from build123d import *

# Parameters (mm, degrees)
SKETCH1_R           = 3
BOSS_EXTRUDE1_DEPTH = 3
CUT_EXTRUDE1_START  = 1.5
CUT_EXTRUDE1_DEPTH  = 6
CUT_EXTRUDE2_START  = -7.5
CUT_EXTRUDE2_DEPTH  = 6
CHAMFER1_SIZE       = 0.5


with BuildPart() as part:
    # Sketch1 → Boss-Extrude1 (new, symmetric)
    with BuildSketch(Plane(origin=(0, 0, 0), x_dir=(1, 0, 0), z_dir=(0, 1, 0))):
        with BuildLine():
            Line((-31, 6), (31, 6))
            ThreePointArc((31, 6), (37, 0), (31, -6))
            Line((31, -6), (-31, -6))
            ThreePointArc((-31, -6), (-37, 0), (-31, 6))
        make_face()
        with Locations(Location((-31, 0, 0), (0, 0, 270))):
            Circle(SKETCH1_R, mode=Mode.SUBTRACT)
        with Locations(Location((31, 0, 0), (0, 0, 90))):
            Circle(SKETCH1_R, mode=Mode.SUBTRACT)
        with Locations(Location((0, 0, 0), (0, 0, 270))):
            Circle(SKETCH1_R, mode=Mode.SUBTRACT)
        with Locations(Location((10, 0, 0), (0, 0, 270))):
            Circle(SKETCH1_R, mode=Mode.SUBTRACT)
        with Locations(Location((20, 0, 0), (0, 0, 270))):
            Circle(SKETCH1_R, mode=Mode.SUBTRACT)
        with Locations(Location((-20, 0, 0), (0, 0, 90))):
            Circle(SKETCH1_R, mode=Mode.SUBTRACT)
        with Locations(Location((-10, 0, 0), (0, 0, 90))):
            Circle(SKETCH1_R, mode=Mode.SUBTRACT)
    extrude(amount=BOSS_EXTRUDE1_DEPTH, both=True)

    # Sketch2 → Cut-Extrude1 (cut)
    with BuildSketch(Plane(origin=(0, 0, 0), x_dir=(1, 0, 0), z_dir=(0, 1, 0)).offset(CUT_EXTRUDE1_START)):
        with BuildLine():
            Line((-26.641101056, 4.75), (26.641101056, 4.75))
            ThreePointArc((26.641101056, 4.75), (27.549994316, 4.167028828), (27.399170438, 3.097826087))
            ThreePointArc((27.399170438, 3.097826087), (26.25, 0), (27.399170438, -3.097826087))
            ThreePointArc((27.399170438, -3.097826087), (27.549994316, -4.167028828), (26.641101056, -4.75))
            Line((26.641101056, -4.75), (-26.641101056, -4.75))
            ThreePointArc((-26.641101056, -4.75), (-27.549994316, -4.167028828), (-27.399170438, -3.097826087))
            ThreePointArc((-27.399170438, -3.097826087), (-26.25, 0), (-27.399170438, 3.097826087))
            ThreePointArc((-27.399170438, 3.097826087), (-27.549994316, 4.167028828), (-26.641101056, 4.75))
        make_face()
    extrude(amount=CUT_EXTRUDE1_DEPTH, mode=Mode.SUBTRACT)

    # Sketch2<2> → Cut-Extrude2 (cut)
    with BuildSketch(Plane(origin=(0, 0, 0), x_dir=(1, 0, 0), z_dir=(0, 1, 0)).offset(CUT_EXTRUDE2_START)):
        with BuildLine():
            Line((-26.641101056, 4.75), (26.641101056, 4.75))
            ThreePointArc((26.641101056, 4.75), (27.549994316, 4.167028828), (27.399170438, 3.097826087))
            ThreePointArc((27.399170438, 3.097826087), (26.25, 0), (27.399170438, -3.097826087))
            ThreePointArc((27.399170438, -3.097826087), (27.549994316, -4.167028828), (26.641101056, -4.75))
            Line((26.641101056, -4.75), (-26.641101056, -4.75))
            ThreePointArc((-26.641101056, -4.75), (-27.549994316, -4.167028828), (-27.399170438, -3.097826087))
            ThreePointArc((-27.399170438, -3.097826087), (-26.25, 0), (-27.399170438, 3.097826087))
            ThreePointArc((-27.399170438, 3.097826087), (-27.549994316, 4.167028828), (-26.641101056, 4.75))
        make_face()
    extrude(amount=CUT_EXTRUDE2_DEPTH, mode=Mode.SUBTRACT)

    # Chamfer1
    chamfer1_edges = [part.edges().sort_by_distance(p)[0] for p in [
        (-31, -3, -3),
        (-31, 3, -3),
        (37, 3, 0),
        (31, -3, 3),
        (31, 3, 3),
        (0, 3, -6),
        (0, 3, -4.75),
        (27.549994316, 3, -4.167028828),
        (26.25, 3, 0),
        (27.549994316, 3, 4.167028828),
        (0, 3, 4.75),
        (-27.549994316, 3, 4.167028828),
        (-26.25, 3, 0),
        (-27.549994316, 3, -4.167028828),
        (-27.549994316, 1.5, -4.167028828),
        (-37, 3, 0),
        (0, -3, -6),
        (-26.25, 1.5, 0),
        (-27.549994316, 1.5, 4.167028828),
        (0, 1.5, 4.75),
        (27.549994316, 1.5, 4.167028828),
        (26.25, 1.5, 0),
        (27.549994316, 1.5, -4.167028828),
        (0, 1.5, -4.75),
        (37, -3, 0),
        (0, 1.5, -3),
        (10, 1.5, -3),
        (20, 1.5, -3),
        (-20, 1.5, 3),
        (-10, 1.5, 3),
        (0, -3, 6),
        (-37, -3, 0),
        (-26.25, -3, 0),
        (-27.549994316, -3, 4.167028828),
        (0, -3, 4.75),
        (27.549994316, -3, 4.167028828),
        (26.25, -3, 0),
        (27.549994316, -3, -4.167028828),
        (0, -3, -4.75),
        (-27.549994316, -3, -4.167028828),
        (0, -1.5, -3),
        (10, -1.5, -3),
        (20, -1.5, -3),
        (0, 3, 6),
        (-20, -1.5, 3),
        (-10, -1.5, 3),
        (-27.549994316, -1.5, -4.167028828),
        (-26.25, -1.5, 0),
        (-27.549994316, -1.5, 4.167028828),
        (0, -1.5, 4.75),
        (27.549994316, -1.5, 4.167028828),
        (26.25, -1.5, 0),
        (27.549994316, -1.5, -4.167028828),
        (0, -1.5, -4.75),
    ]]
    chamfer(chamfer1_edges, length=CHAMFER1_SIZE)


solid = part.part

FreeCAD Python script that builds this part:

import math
import FreeCAD as App
import Part
import Sketcher
Q = App.Units.Quantity


def edges_at(feature, points):
    """Names of the edges that pass closest to the given points."""
    edges = feature.Shape.Edges
    near = lambda p: min(range(len(edges)), key=lambda i: edges[i].distToShape(Part.Vertex(*p))[0])
    return sorted({f"Edge{near(p) + 1}" for p in points})

doc = App.newDocument("Part")
params = doc.addObject("Spreadsheet::Sheet", "Params")
for row, (alias, value) in enumerate([
    ("sketch1_diameter", "6 mm"),
    ("sketch1_radius", "6 mm"),
    ("sketch1_width", "62 mm"),
    ("pad1_length", "6 mm"),
    ("sketch2_radius", "1 mm"),
    ("sketch2_radius2", "4.75 mm"),
    ("pocket1_length", "6 mm"),
    ("sketch3_radius", "1 mm"),
    ("sketch3_radius2", "4.75 mm"),
    ("pocket2_length", "6 mm"),
    ("chamfer_size", "0.5 mm"),
], start=1):
    params.set(f"A{row}", alias)
    params.set(f"B{row}", "=" + value)
    params.setAlias(f"B{row}", alias)

body = doc.addObject("PartDesign::Body", "Body")

# Sketch on XZ plane
sketch1 = body.newObject("Sketcher::SketchObject", "Sketch")
sketch1.AttachmentSupport = (doc.getObject("XZ_Plane"), [""])
sketch1.MapMode = "FlatFace"
sketch1.addGeometry([
    Part.LineSegment(App.Vector(31, -6, 0), App.Vector(-31, -6, 0)),  # 0
    Part.ArcOfCircle(Part.Circle(App.Vector(-31, 0, 0), App.Vector(0, 0, 1), 6), math.radians(90), math.radians(270)),  # 1
    Part.LineSegment(App.Vector(-31, 6, 0), App.Vector(31, 6, 0)),  # 2
    Part.ArcOfCircle(Part.Circle(App.Vector(31, 0, 0), App.Vector(0, 0, 1), 6), math.radians(-90), math.radians(90)),  # 3
    Part.Circle(App.Vector(31, 0, 0), App.Vector(0, 0, 1), 3),  # 4
    Part.Circle(App.Vector(20, 0, 0), App.Vector(0, 0, 1), 3),  # 5
    Part.Circle(App.Vector(10, 0, 0), App.Vector(0, 0, 1), 3),  # 6
    Part.Circle(App.Vector(0, 0, 0), App.Vector(0, 0, 1), 3),  # 7
    Part.Circle(App.Vector(-10, 0, 0), App.Vector(0, 0, 1), 3),  # 8
    Part.Circle(App.Vector(-20, 0, 0), App.Vector(0, 0, 1), 3),  # 9
    Part.Circle(App.Vector(-31, 0, 0), App.Vector(0, 0, 1), 3),  # 10
], False)
sketch1.addConstraint([
    Sketcher.Constraint("Tangent", 0, 2, 1, 2),
    Sketcher.Constraint("Tangent", 1, 1, 2, 1),
    Sketcher.Constraint("Tangent", 2, 2, 3, 2),
    Sketcher.Constraint("Tangent", 3, 1, 0, 1),
    Sketcher.Constraint("Horizontal", 0),
    Sketcher.Constraint("Horizontal", 2),
    Sketcher.Constraint("Coincident", 7, 3, -1, 1),
    Sketcher.Constraint("Coincident", 4, 3, 3, 3),
    Sketcher.Constraint("Coincident", 10, 3, 1, 3),
    Sketcher.Constraint("Equal", 4, 5),
    Sketcher.Constraint("Equal", 5, 6),
    Sketcher.Constraint("Equal", 6, 7),
    Sketcher.Constraint("Equal", 7, 8),
    Sketcher.Constraint("Equal", 8, 9),
    Sketcher.Constraint("Equal", 9, 10),
    Sketcher.Constraint("Symmetric", 1, 3, 3, 3, -1, 1),
    Sketcher.Constraint("Symmetric", 6, 3, 8, 3, -1, 1),
    Sketcher.Constraint("Symmetric", 5, 3, 9, 3, -1, 1),
    Sketcher.Constraint("PointOnObject", 5, 3, -1),
    Sketcher.Constraint("PointOnObject", 6, 3, -1),
    Sketcher.Constraint("Diameter", 4, Q("6 mm")),
    Sketcher.Constraint("Radius", 1, Q("6 mm")),
    Sketcher.Constraint("DistanceX", 0, 2, 0, 1, Q("62 mm")),
    Sketcher.Constraint("DistanceX", -1, 1, 5, 3, Q("20 mm")),
    Sketcher.Constraint("DistanceX", -1, 1, 6, 3, Q("10 mm")),
])
sketch1.setExpression("Constraints[20]", "Params.sketch1_diameter")
sketch1.setExpression("Constraints[21]", "Params.sketch1_radius")
sketch1.setExpression("Constraints[22]", "Params.sketch1_width")
pad1 = body.newObject("PartDesign::Pad", "Pad")
pad1.Profile = sketch1
pad1.setExpression("Length", "Params.pad1_length")
pad1.Midplane = True

# Sketch on XZ plane
sketch2 = body.newObject("Sketcher::SketchObject", "Sketch001")
sketch2.AttachmentSupport = (doc.getObject("XZ_Plane"), [""])
sketch2.MapMode = "FlatFace"
sketch2.AttachmentOffset = App.Placement(App.Vector(0, 0, -1.5), App.Rotation())
sketch2.addGeometry([
    Part.LineSegment(App.Vector(26.6, -4.8, 0), App.Vector(-26.6, -4.8, 0)),  # 0
    Part.ArcOfCircle(Part.Circle(App.Vector(-26.6, -3.8, 0), App.Vector(0, 0, 1), 1), math.radians(139), math.radians(270)),  # 1
    Part.ArcOfCircle(Part.Circle(App.Vector(-31, 0, 0), App.Vector(0, 0, 1), 4.8), math.radians(-41), math.radians(41)),  # 2
    Part.ArcOfCircle(Part.Circle(App.Vector(-26.6, 3.8, 0), App.Vector(0, 0, 1), 1), math.radians(90), math.radians(221)),  # 3
    Part.LineSegment(App.Vector(-26.6, 4.8, 0), App.Vector(26.6, 4.8, 0)),  # 4
    Part.ArcOfCircle(Part.Circle(App.Vector(26.6, 3.8, 0), App.Vector(0, 0, 1), 1), math.radians(-41), math.radians(90)),  # 5
    Part.ArcOfCircle(Part.Circle(App.Vector(31, 0, 0), App.Vector(0, 0, 1), 4.8), math.radians(139), math.radians(221)),  # 6
    Part.ArcOfCircle(Part.Circle(App.Vector(26.6, -3.8, 0), App.Vector(0, 0, 1), 1), math.radians(-90), math.radians(41)),  # 7
], False)
sketch2.addConstraint([
    Sketcher.Constraint("Tangent", 0, 2, 1, 2),
    Sketcher.Constraint("Tangent", 1, 1, 2, 1),
    Sketcher.Constraint("Tangent", 2, 2, 3, 2),
    Sketcher.Constraint("Tangent", 3, 1, 4, 1),
    Sketcher.Constraint("Tangent", 4, 2, 5, 2),
    Sketcher.Constraint("Tangent", 5, 1, 6, 1),
    Sketcher.Constraint("Tangent", 6, 2, 7, 2),
    Sketcher.Constraint("Tangent", 7, 1, 0, 1),
    Sketcher.Constraint("Horizontal", 0),
    Sketcher.Constraint("Horizontal", 4),
    Sketcher.Constraint("Equal", 1, 3),
    Sketcher.Constraint("Equal", 3, 5),
    Sketcher.Constraint("Equal", 2, 6),
    Sketcher.Constraint("Equal", 5, 7),
    Sketcher.Constraint("Symmetric", 1, 3, 5, 3, -1, 1),
    Sketcher.Constraint("Symmetric", 2, 3, 6, 3, -2),
    Sketcher.Constraint("Radius", 1, Q("1 mm")),
    Sketcher.Constraint("Radius", 2, Q("4.75 mm")),
    Sketcher.Constraint("DistanceX", 2, 3, -1, 1, Q("31 mm")),
    Sketcher.Constraint("DistanceY", 1, 3, 3, 3, Q("7.5 mm")),
])
sketch2.setExpression("Constraints[16]", "Params.sketch2_radius")
sketch2.setExpression("Constraints[17]", "Params.sketch2_radius2")
pocket1 = body.newObject("PartDesign::Pocket", "Pocket")
pocket1.Profile = sketch2
pocket1.setExpression("Length", "Params.pocket1_length")

# Sketch on XZ plane
sketch3 = body.newObject("Sketcher::SketchObject", "Sketch002")
sketch3.AttachmentSupport = (doc.getObject("XZ_Plane"), [""])
sketch3.MapMode = "FlatFace"
sketch3.AttachmentOffset = App.Placement(App.Vector(0, 0, 7.5), App.Rotation())
sketch3.addGeometry([
    Part.LineSegment(App.Vector(26.6, -4.8, 0), App.Vector(-26.6, -4.8, 0)),  # 0
    Part.ArcOfCircle(Part.Circle(App.Vector(-26.6, -3.8, 0), App.Vector(0, 0, 1), 1), math.radians(139), math.radians(270)),  # 1
    Part.ArcOfCircle(Part.Circle(App.Vector(-31, 0, 0), App.Vector(0, 0, 1), 4.8), math.radians(-41), math.radians(41)),  # 2
    Part.ArcOfCircle(Part.Circle(App.Vector(-26.6, 3.8, 0), App.Vector(0, 0, 1), 1), math.radians(90), math.radians(221)),  # 3
    Part.LineSegment(App.Vector(-26.6, 4.8, 0), App.Vector(26.6, 4.8, 0)),  # 4
    Part.ArcOfCircle(Part.Circle(App.Vector(26.6, 3.8, 0), App.Vector(0, 0, 1), 1), math.radians(-41), math.radians(90)),  # 5
    Part.ArcOfCircle(Part.Circle(App.Vector(31, 0, 0), App.Vector(0, 0, 1), 4.8), math.radians(139), math.radians(221)),  # 6
    Part.ArcOfCircle(Part.Circle(App.Vector(26.6, -3.8, 0), App.Vector(0, 0, 1), 1), math.radians(-90), math.radians(41)),  # 7
], False)
sketch3.addConstraint([
    Sketcher.Constraint("Tangent", 0, 2, 1, 2),
    Sketcher.Constraint("Tangent", 1, 1, 2, 1),
    Sketcher.Constraint("Tangent", 2, 2, 3, 2),
    Sketcher.Constraint("Tangent", 3, 1, 4, 1),
    Sketcher.Constraint("Tangent", 4, 2, 5, 2),
    Sketcher.Constraint("Tangent", 5, 1, 6, 1),
    Sketcher.Constraint("Tangent", 6, 2, 7, 2),
    Sketcher.Constraint("Tangent", 7, 1, 0, 1),
    Sketcher.Constraint("Horizontal", 0),
    Sketcher.Constraint("Horizontal", 4),
    Sketcher.Constraint("Equal", 1, 3),
    Sketcher.Constraint("Equal", 3, 5),
    Sketcher.Constraint("Equal", 2, 6),
    Sketcher.Constraint("Equal", 5, 7),
    Sketcher.Constraint("Symmetric", 1, 3, 5, 3, -1, 1),
    Sketcher.Constraint("Symmetric", 2, 3, 6, 3, -2),
    Sketcher.Constraint("Radius", 1, Q("1 mm")),
    Sketcher.Constraint("Radius", 2, Q("4.75 mm")),
    Sketcher.Constraint("DistanceX", 2, 3, -1, 1, Q("31 mm")),
    Sketcher.Constraint("DistanceY", 1, 3, 3, 3, Q("7.5 mm")),
])
sketch3.setExpression("Constraints[16]", "Params.sketch3_radius")
sketch3.setExpression("Constraints[17]", "Params.sketch3_radius2")
pocket2 = body.newObject("PartDesign::Pocket", "Pocket001")
pocket2.Profile = sketch3
pocket2.setExpression("Length", "Params.pocket2_length")
doc.recompute()

chamfer = body.newObject("PartDesign::Chamfer", "Chamfer")
chamfer.Base = (pocket2, edges_at(pocket2, [
    (-31, -3, -3),
    (-31, 3, -3),
    (37, 3, 0),
    (31, -3, 3),
    (31, 3, 3),
    (0, 3, -6),
    (0, 3, -4.75),
    (27.55, 3, -4.167),
    (26.25, 3, 0),
    (27.55, 3, 4.167),
    (0, 3, 4.75),
    (-27.55, 3, 4.167),
    (-26.25, 3, 0),
    (-27.55, 3, -4.167),
    (-27.55, 1.5, -4.167),
    (-37, 3, 0),
    (0, -3, -6),
    (-26.25, 1.5, 0),
    (-27.55, 1.5, 4.167),
    (0, 1.5, 4.75),
    (27.55, 1.5, 4.167),
    (26.25, 1.5, 0),
    (27.55, 1.5, -4.167),
    (0, 1.5, -4.75),
    (37, -3, 0),
    (0, 1.5, -3),
    (10, 1.5, -3),
    (20, 1.5, -3),
    (-20, 1.5, 3),
    (-10, 1.5, 3),
    (0, -3, 6),
    (-37, -3, 0),
    (-26.25, -3, 0),
    (-27.55, -3, 4.167),
    (0, -3, 4.75),
    (27.55, -3, 4.167),
    (26.25, -3, 0),
    (27.55, -3, -4.167),
    (0, -3, -4.75),
    (-27.55, -3, -4.167),
    (0, -1.5, -3),
    (10, -1.5, -3),
    (20, -1.5, -3),
    (0, 3, 6),
    (-20, -1.5, 3),
    (-10, -1.5, 3),
    (-27.55, -1.5, -4.167),
    (-26.25, -1.5, 0),
    (-27.55, -1.5, 4.167),
    (0, -1.5, 4.75),
    (27.55, -1.5, 4.167),
    (26.25, -1.5, 0),
    (27.55, -1.5, -4.167),
    (0, -1.5, -4.75),
]))
chamfer.setExpression("Size", "Params.chamfer_size")

doc.recompute()
